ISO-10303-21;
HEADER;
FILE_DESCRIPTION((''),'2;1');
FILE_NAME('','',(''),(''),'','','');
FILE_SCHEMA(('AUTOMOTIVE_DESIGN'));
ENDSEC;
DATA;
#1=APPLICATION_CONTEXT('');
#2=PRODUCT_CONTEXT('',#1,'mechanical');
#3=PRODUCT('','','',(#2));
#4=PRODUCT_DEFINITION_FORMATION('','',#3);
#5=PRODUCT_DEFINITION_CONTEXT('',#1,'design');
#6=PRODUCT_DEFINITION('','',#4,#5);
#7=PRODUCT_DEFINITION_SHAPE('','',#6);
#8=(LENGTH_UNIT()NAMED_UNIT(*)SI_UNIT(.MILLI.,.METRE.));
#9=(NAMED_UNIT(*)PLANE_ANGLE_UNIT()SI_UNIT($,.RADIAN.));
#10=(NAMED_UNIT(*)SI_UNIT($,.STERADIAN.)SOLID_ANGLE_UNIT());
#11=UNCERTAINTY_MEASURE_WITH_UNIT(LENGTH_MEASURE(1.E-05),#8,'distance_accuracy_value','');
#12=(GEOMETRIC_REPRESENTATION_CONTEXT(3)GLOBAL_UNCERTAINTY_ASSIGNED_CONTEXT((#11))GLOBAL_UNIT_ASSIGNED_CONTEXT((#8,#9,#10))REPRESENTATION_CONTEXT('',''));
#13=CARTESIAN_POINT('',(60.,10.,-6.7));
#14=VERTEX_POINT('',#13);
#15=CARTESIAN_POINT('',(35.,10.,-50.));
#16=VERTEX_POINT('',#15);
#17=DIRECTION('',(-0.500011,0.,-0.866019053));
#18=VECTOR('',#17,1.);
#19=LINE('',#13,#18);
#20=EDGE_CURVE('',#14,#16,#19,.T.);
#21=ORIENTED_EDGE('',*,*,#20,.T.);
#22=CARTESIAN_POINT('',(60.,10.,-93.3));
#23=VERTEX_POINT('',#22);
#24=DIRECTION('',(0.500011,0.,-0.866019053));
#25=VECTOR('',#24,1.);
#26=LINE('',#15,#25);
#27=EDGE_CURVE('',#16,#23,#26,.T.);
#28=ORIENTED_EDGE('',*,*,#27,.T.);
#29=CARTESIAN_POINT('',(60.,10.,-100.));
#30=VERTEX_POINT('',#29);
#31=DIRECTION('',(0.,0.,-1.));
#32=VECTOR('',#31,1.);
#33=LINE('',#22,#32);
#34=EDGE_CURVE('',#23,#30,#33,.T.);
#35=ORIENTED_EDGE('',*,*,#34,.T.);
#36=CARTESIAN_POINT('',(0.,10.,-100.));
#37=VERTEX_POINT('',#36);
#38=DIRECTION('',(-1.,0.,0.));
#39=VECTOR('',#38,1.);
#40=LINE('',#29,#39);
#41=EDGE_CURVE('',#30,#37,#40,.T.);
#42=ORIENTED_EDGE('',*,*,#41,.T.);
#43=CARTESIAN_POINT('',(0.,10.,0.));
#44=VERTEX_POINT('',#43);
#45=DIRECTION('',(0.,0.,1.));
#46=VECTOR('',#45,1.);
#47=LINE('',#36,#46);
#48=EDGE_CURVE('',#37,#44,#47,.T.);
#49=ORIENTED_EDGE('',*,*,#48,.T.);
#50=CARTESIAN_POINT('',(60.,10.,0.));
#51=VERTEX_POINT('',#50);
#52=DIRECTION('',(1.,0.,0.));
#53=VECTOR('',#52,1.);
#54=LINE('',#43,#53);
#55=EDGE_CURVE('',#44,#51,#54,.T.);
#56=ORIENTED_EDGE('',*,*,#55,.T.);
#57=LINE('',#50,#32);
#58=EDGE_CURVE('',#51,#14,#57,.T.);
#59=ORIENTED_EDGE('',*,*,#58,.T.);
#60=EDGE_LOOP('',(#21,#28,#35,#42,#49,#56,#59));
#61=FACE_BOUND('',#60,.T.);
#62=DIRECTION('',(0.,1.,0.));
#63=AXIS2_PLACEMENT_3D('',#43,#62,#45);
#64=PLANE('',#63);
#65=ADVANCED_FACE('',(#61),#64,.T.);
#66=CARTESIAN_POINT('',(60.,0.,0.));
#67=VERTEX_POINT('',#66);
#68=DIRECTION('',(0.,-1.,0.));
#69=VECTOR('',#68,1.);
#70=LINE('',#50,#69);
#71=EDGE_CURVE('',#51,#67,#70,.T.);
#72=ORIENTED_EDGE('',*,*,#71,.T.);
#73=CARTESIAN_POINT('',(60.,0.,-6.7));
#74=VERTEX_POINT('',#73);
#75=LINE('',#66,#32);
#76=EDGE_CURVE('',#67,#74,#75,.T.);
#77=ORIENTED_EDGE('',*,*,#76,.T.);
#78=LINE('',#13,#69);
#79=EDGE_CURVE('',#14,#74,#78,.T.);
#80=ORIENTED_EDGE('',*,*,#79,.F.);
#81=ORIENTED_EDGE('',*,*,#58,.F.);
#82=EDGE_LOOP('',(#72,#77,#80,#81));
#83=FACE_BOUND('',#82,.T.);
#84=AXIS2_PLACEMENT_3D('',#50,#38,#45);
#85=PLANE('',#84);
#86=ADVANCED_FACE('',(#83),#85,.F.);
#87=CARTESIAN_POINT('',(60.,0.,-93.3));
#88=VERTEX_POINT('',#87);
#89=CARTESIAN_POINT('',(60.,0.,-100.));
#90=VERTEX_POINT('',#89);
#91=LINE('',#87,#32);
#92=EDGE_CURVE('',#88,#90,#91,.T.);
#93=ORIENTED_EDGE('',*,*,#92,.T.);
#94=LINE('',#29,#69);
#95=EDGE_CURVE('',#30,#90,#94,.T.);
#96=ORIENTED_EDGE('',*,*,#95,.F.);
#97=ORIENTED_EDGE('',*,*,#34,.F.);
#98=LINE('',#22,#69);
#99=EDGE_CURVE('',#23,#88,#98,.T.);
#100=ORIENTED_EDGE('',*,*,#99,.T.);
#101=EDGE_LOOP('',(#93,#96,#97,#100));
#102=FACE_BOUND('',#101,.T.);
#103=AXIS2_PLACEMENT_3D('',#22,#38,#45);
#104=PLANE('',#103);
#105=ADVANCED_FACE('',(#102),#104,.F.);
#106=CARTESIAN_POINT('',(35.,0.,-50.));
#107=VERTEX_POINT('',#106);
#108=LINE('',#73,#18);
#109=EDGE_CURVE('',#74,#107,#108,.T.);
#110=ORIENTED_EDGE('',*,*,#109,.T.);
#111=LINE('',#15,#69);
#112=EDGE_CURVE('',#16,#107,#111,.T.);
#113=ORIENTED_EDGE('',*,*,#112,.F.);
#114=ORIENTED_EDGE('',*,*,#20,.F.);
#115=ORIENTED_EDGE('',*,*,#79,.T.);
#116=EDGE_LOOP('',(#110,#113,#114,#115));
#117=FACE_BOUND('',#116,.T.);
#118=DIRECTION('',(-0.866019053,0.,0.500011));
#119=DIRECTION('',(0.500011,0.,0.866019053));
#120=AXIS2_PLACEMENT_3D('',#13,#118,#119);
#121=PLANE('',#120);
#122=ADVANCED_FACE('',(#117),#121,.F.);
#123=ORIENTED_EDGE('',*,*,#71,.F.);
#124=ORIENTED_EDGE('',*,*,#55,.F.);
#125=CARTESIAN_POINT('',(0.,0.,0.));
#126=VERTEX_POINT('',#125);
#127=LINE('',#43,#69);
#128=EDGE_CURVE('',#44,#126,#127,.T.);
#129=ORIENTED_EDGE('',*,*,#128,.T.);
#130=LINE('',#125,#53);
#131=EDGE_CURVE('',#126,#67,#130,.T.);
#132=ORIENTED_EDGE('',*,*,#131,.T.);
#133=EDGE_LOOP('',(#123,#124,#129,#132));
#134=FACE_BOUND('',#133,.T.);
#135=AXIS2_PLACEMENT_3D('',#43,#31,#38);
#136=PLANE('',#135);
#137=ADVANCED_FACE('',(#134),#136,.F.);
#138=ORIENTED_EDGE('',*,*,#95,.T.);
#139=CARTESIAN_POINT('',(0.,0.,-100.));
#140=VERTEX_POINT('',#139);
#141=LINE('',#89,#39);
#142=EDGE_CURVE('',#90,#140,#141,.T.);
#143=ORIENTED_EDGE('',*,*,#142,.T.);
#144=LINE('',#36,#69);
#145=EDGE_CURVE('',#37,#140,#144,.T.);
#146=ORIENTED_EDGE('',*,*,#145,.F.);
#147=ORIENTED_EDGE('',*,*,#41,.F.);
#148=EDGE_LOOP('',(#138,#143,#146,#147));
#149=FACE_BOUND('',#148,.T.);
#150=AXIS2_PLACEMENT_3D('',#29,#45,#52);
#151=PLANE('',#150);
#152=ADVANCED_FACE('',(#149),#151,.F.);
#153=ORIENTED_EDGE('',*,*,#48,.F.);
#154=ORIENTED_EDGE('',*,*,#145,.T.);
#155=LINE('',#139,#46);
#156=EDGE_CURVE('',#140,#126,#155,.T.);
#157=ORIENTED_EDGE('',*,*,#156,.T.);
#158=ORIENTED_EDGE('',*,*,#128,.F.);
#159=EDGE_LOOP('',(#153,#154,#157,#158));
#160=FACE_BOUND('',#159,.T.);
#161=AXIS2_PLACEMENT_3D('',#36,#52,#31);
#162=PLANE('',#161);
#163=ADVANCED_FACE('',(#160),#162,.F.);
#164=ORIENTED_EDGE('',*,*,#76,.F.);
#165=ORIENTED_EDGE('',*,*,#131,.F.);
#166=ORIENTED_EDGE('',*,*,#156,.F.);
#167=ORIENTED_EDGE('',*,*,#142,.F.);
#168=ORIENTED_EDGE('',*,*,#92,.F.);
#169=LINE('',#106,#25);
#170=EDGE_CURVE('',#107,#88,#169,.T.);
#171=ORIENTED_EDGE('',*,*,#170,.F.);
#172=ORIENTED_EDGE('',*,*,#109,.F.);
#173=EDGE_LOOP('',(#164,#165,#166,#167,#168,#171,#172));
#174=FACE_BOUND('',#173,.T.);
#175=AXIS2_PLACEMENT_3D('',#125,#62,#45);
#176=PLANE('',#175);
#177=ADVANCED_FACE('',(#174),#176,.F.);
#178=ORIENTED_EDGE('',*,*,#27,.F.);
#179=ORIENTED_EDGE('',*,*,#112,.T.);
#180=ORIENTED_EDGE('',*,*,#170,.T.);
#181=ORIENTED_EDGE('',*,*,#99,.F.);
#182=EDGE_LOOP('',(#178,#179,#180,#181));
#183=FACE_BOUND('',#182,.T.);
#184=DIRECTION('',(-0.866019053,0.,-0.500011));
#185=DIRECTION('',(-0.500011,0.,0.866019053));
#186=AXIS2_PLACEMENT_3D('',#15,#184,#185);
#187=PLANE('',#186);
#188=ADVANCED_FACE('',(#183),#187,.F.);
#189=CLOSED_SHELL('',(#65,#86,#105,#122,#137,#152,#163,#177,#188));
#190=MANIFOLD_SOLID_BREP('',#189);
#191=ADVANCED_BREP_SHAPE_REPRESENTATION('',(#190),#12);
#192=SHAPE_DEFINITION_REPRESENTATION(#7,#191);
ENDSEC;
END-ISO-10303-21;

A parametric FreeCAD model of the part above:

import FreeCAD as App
import Part
import Sketcher

V = App.Vector

doc = App.newDocument("Part")
body = doc.addObject("PartDesign::Body", "Body")

# Sketch on XZ plane
sketch1 = doc.addObject("Sketcher::SketchObject", "Sketch")
body.addObject(sketch1)
sketch1.AttachmentSupport = (doc.XZ_Plane, [""])
sketch1.MapMode = "FlatFace"
sketch1.addGeometry(Part.LineSegment(V(0, 0, 0), V(60, 0, 0)), False)
sketch1.addGeometry(Part.LineSegment(V(60, 0, 0), V(60, -7, 0)), False)
sketch1.addGeometry(Part.LineSegment(V(60, -7, 0), V(35, -50, 0)), False)
sketch1.addGeometry(Part.LineSegment(V(35, -50, 0), V(60, -93, 0)), False)
sketch1.addGeometry(Part.LineSegment(V(60, -93, 0), V(60, -100, 0)), False)
sketch1.addGeometry(Part.LineSegment(V(60, -100, 0), V(0, -100, 0)), False)
sketch1.addGeometry(Part.LineSegment(V(0, -100, 0), V(0, 0, 0)), False)
sketch1.addConstraint(Sketcher.Constraint("Coincident", 0, 2, 1, 1))
sketch1.addConstraint(Sketcher.Constraint("Coincident", 1, 2, 2, 1))
sketch1.addConstraint(Sketcher.Constraint("Coincident", 2, 2, 3, 1))
sketch1.addConstraint(Sketcher.Constraint("Coincident", 3, 2, 4, 1))
sketch1.addConstraint(Sketcher.Constraint("Coincident", 4, 2, 5, 1))
sketch1.addConstraint(Sketcher.Constraint("Coincident", 5, 2, 6, 1))
sketch1.addConstraint(Sketcher.Constraint("Coincident", 6, 2, 0, 1))
sketch1.addConstraint(Sketcher.Constraint("Horizontal", 0))
sketch1.addConstraint(Sketcher.Constraint("Vertical", 1))
sketch1.addConstraint(Sketcher.Constraint("Vertical", 4))
sketch1.addConstraint(Sketcher.Constraint("Horizontal", 5))
sketch1.addConstraint(Sketcher.Constraint("Vertical", 6))
sketch1.addConstraint(Sketcher.Constraint("Coincident", 6, 2, -1, 1))
sketch1.addConstraint(Sketcher.Constraint("Vertical", 1, 2, 3, 2))
sketch1.addConstraint(Sketcher.Constraint("Equal", 1, 4))
sketch1.addConstraint(Sketcher.Constraint("Equal", 2, 3))
sketch1.addConstraint(Sketcher.Constraint("DistanceX", 0, 1, 0, 2, 60.0))
sketch1.addConstraint(Sketcher.Constraint("DistanceY", 6, 1, 6, 2, 100.0))
sketch1.addConstraint(Sketcher.Constraint("DistanceY", 1, 2, 1, 1, 6.7))
sketch1.addConstraint(Sketcher.Constraint("DistanceX", -1, 1, 2, 2, 35.0))
pad1 = doc.addObject("PartDesign::Pad", "Pad")
body.addObject(pad1)
pad1.Profile = sketch1
pad1.Length = 10
pad1.Reversed = True

doc.recompute()
